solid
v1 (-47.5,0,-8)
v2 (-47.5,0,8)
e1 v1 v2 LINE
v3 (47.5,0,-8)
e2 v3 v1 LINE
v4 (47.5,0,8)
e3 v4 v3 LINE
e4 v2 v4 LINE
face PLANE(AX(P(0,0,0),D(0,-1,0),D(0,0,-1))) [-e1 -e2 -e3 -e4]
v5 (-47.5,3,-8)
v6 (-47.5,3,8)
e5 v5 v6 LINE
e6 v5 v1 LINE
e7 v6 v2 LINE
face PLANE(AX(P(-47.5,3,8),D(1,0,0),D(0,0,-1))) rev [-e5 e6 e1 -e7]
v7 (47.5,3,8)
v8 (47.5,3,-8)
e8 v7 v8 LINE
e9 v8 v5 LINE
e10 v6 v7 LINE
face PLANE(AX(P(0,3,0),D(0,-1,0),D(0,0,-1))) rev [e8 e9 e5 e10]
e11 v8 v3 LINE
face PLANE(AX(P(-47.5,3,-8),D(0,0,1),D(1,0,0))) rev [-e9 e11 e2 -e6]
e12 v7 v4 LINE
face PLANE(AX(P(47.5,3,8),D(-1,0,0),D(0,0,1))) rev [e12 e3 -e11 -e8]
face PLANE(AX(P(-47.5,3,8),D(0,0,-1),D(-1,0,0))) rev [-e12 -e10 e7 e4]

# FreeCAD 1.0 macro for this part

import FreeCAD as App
import Part
import Sketcher
from FreeCAD import Vector
Q = App.Units.Quantity

doc = App.newDocument("Part")
params = doc.addObject("Spreadsheet::Sheet", "Params")
for row, (alias, value) in enumerate([
    ("sketch1_width", "95 mm"),
    ("sketch1_height", "16 mm"),
    ("pad1_length", "3 mm"),
], start=1):
    params.set(f"A{row}", alias)
    params.set(f"B{row}", "=" + value)
    params.setAlias(f"B{row}", alias)

body = doc.addObject("PartDesign::Body", "Body")

# Sketch on XZ plane
sketch1 = body.newObject("Sketcher::SketchObject", "Sketch")
sketch1.AttachmentSupport = (doc.getObject("XZ_Plane"), [""])
sketch1.MapMode = "FlatFace"
sketch1.addGeometry([
    Part.LineSegment(Vector(-48, -8, 0), Vector(-48, 8, 0)),
    Part.LineSegment(Vector(-48, 8, 0), Vector(48, 8, 0)),
    Part.LineSegment(Vector(48, 8, 0), Vector(48, -8, 0)),
    Part.LineSegment(Vector(48, -8, 0), Vector(-48, -8, 0)),
], False)
sketch1.addConstraint([
    Sketcher.Constraint("Coincident", 0, 2, 1, 1),
    Sketcher.Constraint("Coincident", 1, 2, 2, 1),
    Sketcher.Constraint("Coincident", 2, 2, 3, 1),
    Sketcher.Constraint("Coincident", 3, 2, 0, 1),
    Sketcher.Constraint("Vertical", 0),
    Sketcher.Constraint("Horizontal", 1),
    Sketcher.Constraint("Vertical", 2),
    Sketcher.Constraint("Horizontal", 3),
    Sketcher.Constraint("Symmetric", 0, 2, 2, 2, -1, 1),
    Sketcher.Constraint("DistanceX", 1, 1, 1, 2, Q("95 mm")),
    Sketcher.Constraint("DistanceY", 0, 1, 0, 2, Q("16 mm")),
])
sketch1.setExpression("Constraints[9]", "Params.sketch1_width")
sketch1.setExpression("Constraints[10]", "Params.sketch1_height")
pad1 = body.newObject("PartDesign::Pad", "Pad")
pad1.Profile = sketch1
pad1.setExpression("Length", "Params.pad1_length")
pad1.Reversed = True

doc.recompute()
